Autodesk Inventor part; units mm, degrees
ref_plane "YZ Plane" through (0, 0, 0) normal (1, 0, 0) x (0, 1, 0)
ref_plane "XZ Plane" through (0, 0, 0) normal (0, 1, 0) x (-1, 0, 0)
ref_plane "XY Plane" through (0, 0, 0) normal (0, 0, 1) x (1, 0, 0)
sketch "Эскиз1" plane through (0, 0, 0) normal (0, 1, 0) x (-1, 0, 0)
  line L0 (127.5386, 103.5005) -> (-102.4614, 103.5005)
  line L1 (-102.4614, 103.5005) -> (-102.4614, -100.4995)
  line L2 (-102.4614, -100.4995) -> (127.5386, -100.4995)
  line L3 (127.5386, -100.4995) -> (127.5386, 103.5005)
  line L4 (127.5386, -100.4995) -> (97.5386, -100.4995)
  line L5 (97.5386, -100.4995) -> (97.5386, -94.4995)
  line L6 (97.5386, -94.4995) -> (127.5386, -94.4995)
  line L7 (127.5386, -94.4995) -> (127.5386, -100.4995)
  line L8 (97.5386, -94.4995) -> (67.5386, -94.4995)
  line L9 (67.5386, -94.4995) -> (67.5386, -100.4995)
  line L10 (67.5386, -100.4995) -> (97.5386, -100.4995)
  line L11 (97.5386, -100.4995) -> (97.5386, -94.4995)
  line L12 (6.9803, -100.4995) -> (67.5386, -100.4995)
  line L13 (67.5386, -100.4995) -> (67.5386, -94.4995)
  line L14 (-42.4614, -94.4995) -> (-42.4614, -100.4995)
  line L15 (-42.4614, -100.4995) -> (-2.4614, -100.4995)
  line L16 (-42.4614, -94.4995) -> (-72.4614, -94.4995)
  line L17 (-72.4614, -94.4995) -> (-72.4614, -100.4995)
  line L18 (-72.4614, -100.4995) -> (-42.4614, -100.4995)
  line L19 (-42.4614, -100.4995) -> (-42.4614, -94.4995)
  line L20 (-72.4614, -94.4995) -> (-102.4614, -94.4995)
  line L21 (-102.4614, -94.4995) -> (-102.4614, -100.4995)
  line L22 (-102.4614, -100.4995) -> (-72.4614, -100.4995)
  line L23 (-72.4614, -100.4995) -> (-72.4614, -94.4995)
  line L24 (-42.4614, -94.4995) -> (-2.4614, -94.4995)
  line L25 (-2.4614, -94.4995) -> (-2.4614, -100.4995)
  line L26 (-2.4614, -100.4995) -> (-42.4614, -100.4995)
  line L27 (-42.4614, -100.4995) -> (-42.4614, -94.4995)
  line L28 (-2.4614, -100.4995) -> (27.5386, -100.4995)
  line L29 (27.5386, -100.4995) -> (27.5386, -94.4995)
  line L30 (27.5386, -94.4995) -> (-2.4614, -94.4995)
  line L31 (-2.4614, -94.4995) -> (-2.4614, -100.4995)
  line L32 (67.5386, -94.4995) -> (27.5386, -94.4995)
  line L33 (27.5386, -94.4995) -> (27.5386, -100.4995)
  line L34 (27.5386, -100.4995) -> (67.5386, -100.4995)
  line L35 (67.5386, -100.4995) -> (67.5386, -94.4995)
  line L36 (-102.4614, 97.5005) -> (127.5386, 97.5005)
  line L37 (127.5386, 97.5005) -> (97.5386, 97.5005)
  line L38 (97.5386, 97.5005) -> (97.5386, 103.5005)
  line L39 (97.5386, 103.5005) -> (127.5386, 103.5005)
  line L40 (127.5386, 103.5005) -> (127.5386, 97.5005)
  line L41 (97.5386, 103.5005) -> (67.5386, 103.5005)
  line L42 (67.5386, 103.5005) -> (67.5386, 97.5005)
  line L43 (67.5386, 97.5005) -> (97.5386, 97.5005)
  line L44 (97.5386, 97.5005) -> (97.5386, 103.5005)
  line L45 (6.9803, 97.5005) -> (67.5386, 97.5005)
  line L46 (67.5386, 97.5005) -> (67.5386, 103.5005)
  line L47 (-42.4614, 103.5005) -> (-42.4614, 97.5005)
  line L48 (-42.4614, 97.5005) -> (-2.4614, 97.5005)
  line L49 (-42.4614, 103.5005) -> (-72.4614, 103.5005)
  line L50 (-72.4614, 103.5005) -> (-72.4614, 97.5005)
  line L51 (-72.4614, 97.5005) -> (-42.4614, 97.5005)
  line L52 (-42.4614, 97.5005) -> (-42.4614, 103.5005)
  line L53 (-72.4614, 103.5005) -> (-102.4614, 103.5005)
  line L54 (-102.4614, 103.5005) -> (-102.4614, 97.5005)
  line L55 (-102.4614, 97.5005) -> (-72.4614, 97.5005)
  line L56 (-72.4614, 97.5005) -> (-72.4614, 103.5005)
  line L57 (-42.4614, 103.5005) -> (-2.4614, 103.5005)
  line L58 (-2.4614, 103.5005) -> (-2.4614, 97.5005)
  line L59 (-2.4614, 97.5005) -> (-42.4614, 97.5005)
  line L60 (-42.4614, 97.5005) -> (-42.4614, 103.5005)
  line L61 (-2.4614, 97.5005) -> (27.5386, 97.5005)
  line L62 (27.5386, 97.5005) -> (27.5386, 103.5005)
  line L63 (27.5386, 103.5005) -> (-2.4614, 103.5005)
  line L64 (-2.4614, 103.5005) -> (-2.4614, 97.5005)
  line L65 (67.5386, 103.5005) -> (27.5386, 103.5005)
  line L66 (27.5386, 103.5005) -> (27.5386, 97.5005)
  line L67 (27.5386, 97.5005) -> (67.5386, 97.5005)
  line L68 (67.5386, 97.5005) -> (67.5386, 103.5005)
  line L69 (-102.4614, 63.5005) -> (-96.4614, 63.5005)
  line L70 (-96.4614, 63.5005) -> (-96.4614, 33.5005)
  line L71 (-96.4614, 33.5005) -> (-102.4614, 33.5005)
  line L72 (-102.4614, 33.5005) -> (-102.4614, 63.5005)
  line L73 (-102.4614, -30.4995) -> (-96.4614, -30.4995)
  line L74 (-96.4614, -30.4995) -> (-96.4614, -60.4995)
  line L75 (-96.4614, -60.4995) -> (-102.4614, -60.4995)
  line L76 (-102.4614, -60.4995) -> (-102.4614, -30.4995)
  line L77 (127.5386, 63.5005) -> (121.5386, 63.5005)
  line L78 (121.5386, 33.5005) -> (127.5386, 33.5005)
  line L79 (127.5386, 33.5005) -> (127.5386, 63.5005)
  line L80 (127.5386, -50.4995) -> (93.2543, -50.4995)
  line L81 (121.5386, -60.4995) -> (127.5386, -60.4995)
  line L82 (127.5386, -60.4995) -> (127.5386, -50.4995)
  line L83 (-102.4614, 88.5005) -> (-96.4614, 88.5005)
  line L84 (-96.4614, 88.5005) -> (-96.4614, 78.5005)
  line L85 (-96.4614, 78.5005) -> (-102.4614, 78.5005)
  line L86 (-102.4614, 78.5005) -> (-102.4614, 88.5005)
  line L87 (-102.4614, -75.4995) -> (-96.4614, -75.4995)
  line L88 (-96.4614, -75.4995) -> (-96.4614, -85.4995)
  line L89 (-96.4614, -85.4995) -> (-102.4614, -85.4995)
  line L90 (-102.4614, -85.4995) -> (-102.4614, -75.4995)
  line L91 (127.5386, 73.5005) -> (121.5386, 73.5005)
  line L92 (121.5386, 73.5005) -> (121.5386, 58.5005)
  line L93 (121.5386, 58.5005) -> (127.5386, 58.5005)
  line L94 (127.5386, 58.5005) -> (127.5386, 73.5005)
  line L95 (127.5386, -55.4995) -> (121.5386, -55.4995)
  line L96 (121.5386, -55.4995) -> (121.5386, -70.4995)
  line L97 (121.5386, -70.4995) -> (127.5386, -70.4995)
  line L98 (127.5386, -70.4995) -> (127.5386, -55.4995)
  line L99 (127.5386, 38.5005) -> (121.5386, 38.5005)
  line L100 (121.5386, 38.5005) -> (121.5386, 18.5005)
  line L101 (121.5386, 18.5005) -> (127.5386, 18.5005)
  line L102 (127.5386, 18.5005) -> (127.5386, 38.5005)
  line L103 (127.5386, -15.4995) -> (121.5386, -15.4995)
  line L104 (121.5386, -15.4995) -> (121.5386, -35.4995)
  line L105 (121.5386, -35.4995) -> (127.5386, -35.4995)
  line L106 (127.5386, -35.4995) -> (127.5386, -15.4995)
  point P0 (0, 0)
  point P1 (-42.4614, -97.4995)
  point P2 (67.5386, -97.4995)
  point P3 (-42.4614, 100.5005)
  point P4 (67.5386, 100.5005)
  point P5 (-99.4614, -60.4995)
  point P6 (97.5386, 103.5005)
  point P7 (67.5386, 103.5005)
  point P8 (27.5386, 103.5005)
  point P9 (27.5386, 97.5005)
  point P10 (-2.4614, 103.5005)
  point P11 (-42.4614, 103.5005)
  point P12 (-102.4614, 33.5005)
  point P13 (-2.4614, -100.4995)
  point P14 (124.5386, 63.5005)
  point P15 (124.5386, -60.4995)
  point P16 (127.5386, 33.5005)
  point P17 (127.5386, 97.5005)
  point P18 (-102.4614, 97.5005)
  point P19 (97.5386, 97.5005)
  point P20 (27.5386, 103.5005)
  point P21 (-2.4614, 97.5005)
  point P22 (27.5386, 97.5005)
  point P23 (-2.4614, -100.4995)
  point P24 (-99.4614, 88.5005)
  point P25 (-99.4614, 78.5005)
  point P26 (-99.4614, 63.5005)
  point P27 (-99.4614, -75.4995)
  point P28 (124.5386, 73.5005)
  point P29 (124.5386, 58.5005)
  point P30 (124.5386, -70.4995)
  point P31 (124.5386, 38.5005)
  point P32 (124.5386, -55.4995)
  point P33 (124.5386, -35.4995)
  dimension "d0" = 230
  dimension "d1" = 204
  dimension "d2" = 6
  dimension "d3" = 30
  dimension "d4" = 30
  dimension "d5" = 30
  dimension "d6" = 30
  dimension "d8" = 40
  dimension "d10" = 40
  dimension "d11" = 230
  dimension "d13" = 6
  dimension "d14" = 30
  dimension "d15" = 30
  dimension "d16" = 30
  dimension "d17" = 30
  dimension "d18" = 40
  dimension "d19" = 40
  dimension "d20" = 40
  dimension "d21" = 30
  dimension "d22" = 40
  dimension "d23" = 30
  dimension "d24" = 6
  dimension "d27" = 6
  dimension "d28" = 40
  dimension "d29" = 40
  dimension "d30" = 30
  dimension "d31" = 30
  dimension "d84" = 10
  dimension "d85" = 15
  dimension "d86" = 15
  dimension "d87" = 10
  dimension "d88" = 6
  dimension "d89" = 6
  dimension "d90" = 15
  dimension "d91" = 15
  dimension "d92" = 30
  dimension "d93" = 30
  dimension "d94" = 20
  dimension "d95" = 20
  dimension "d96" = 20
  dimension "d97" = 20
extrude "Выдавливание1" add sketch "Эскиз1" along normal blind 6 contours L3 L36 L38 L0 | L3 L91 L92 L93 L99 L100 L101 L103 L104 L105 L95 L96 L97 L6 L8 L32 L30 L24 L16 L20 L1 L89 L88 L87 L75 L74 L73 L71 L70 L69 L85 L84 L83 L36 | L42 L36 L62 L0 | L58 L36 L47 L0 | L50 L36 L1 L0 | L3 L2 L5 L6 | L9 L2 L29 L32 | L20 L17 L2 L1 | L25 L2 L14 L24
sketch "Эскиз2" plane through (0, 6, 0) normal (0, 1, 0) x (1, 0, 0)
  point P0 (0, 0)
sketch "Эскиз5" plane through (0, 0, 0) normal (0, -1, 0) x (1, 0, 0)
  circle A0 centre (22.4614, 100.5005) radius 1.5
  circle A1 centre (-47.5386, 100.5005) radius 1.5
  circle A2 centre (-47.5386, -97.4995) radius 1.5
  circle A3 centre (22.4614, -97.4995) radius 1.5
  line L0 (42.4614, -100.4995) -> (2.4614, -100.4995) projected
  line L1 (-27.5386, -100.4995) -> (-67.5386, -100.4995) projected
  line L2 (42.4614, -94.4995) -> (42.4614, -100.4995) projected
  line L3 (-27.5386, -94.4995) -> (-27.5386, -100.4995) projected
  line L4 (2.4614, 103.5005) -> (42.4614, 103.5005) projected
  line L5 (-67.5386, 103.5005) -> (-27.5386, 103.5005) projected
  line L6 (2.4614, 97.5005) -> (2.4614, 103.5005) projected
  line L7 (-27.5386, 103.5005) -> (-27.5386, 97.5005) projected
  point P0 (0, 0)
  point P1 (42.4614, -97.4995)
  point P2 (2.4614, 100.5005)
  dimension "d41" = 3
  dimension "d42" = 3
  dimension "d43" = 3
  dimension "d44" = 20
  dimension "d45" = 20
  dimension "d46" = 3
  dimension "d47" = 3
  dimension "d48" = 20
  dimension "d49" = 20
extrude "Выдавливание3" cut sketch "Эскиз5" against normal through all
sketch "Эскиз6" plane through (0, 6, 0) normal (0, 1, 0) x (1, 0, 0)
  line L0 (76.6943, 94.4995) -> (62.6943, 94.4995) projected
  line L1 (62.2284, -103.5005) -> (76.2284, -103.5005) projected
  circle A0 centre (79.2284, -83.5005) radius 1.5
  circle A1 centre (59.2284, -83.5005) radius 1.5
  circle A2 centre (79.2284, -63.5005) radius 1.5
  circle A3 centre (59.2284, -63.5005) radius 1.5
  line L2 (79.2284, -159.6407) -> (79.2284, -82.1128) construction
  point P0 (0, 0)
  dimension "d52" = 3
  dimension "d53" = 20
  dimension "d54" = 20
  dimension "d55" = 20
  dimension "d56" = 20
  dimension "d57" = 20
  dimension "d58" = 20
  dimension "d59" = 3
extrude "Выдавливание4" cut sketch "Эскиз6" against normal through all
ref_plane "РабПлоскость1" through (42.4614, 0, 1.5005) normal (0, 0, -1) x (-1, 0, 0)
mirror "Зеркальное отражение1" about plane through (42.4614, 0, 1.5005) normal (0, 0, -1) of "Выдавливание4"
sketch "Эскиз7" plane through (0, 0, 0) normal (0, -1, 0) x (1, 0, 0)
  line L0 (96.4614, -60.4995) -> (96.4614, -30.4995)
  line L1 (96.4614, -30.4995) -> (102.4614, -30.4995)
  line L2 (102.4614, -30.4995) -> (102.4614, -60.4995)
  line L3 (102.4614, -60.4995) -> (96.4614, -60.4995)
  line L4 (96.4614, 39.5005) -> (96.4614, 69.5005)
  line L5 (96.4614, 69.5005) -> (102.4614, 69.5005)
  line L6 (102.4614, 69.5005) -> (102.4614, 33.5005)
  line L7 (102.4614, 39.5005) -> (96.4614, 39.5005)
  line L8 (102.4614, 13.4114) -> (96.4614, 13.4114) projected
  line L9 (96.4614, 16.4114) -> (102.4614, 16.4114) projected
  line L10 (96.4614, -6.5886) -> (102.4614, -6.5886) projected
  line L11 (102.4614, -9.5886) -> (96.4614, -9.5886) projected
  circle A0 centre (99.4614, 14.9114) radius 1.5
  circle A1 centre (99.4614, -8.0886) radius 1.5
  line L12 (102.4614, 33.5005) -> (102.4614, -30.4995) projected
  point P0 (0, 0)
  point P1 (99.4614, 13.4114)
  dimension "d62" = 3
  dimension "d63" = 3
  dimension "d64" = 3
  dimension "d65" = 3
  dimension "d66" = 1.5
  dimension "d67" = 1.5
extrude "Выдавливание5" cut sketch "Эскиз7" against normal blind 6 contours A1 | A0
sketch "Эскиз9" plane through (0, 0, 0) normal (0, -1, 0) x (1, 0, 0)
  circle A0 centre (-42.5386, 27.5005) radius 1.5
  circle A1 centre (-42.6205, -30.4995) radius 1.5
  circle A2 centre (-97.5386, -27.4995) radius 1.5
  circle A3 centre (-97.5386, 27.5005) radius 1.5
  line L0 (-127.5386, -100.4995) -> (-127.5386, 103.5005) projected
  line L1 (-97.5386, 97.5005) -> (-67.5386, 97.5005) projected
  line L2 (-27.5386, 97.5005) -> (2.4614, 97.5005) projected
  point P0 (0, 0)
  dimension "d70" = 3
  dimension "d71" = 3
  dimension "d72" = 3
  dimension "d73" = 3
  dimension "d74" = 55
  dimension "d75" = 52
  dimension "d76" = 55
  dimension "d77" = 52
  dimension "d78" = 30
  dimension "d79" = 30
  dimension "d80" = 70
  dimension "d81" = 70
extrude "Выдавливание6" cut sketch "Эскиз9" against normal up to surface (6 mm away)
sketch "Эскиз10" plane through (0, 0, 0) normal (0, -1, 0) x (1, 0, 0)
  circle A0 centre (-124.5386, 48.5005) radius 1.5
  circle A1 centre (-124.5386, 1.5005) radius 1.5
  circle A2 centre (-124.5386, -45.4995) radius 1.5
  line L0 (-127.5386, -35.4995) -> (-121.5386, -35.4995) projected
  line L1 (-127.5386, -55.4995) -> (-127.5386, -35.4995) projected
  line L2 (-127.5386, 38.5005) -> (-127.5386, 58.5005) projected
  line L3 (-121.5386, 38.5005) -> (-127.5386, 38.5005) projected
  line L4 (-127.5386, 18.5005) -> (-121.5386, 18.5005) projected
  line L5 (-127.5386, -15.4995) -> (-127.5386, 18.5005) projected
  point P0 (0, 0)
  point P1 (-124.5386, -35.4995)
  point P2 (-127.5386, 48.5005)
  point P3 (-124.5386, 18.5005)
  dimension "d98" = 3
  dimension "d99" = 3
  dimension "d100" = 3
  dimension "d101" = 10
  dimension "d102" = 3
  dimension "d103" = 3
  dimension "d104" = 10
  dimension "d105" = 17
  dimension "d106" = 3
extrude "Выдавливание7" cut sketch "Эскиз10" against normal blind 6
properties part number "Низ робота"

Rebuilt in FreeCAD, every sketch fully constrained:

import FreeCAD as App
import Part
import Sketcher
from FreeCAD import Vector
Q = App.Units.Quantity


def add_polygon(sketch, points):
    """Adds a closed chain of lines whose ends are joined by coincident constraints."""
    first, n = sketch.GeometryCount, len(points)
    for a, b in zip(points, points[1:] + points[:1]):
        sketch.addGeometry(Part.LineSegment(App.Vector(*a, 0), App.Vector(*b, 0)), False)
    for i in range(n):
        sketch.addConstraint(Sketcher.Constraint("Coincident", first + i, 2, first + (i + 1) % n, 1))

doc = App.newDocument("Part")
body = doc.addObject("PartDesign::Body", "Body")

# Sketch on XZ plane
sketch1 = doc.addObject("Sketcher::SketchObject", "Sketch")
body.addObject(sketch1)
sketch1.AttachmentSupport = (doc.XZ_Plane, [""])
sketch1.MapMode = "FlatFace"
add_polygon(sketch1, [(-128, 104), (-98, 104), (-98, 98), (-68, 98), (-68, 104), (-28, 104), (-28, 98), (2, 98), (2, 104), (42, 104), (42, 98), (72, 98), (72, 104), (102, 104), (102, 89), (96, 89), (96, 79), (102, 79), (102, 64), (96, 64), (96, 34), (102, 34), (102, -30), (96, -30), (96, -60), (102, -60), (102, -75), (96, -75), (96, -85), (102, -85), (102, -100), (72, -100), (72, -94), (42, -94), (42, -100), (2, -100), (2, -94), (-28, -94), (-28, -100), (-68, -100), (-68, -94), (-98, -94), (-98, -100), (-128, -100), (-128, -70), (-122, -70), (-122, -55), (-128, -55), (-128, -35), (-122, -35), (-122, -15), (-128, -15), (-128, 19), (-122, 19), (-122, 39), (-128, 39), (-128, 59), (-122, 59), (-122, 74), (-128, 74)])  # lines 0-59
sketch1.addConstraint([
    Sketcher.Constraint("Horizontal", 0),
    Sketcher.Constraint("Vertical", 1),
    Sketcher.Constraint("Horizontal", 2),
    Sketcher.Constraint("Vertical", 3),
    Sketcher.Constraint("Horizontal", 4),
    Sketcher.Constraint("Vertical", 5),
    Sketcher.Constraint("Horizontal", 6),
    Sketcher.Constraint("Vertical", 7),
    Sketcher.Constraint("Horizontal", 8),
    Sketcher.Constraint("Vertical", 9),
    Sketcher.Constraint("Horizontal", 10),
    Sketcher.Constraint("Vertical", 11),
    Sketcher.Constraint("Horizontal", 12),
    Sketcher.Constraint("Vertical", 13),
    Sketcher.Constraint("Horizontal", 14),
    Sketcher.Constraint("Vertical", 15),
    Sketcher.Constraint("Horizontal", 16),
    Sketcher.Constraint("Vertical", 17),
    Sketcher.Constraint("Horizontal", 18),
    Sketcher.Constraint("Vertical", 19),
    Sketcher.Constraint("Horizontal", 20),
    Sketcher.Constraint("Vertical", 21),
    Sketcher.Constraint("Horizontal", 22),
    Sketcher.Constraint("Vertical", 23),
    Sketcher.Constraint("Horizontal", 24),
    Sketcher.Constraint("Vertical", 25),
    Sketcher.Constraint("Horizontal", 26),
    Sketcher.Constraint("Vertical", 27),
    Sketcher.Constraint("Horizontal", 28),
    Sketcher.Constraint("Vertical", 29),
    Sketcher.Constraint("Horizontal", 30),
    Sketcher.Constraint("Vertical", 31),
    Sketcher.Constraint("Horizontal", 32),
    Sketcher.Constraint("Vertical", 33),
    Sketcher.Constraint("Horizontal", 34),
    Sketcher.Constraint("Vertical", 35),
    Sketcher.Constraint("Horizontal", 36),
    Sketcher.Constraint("Vertical", 37),
    Sketcher.Constraint("Horizontal", 38),
    Sketcher.Constraint("Vertical", 39),
    Sketcher.Constraint("Horizontal", 40),
    Sketcher.Constraint("Vertical", 41),
    Sketcher.Constraint("Horizontal", 42),
    Sketcher.Constraint("Vertical", 43),
    Sketcher.Constraint("Horizontal", 44),
    Sketcher.Constraint("Vertical", 45),
    Sketcher.Constraint("Horizontal", 46),
    Sketcher.Constraint("Vertical", 47),
    Sketcher.Constraint("Horizontal", 48),
    Sketcher.Constraint("Vertical", 49),
    Sketcher.Constraint("Horizontal", 50),
    Sketcher.Constraint("Vertical", 51),
    Sketcher.Constraint("Horizontal", 52),
    Sketcher.Constraint("Vertical", 53),
    Sketcher.Constraint("Horizontal", 54),
    Sketcher.Constraint("Vertical", 55),
    Sketcher.Constraint("Horizontal", 56),
    Sketcher.Constraint("Vertical", 57),
    Sketcher.Constraint("Horizontal", 58),
    Sketcher.Constraint("Vertical", 59),
    Sketcher.Constraint("Horizontal", 0, 2, 3, 2),
    Sketcher.Constraint("Horizontal", 2, 2, 5, 2),
    Sketcher.Constraint("Horizontal", 4, 2, 7, 2),
    Sketcher.Constraint("Horizontal", 6, 2, 9, 2),
    Sketcher.Constraint("Horizontal", 8, 2, 11, 2),
    Sketcher.Constraint("Horizontal", 30, 2, 33, 2),
    Sketcher.Constraint("Horizontal", 32, 2, 35, 2),
    Sketcher.Constraint("Horizontal", 34, 2, 37, 2),
    Sketcher.Constraint("Horizontal", 36, 2, 39, 2),
    Sketcher.Constraint("Horizontal", 38, 2, 41, 2),
    Sketcher.Constraint("Vertical", 13, 2, 16, 2),
    Sketcher.Constraint("Vertical", 15, 2, 18, 2),
    Sketcher.Constraint("Vertical", 17, 2, 20, 2),
    Sketcher.Constraint("Vertical", 19, 2, 22, 2),
    Sketcher.Constraint("Vertical", 21, 2, 24, 2),
    Sketcher.Constraint("Vertical", 23, 2, 26, 2),
    Sketcher.Constraint("Vertical", 25, 2, 28, 2),
    Sketcher.Constraint("Vertical", 11, 2, 30, 2),
    Sketcher.Constraint("Vertical", 9, 2, 32, 2),
    Sketcher.Constraint("Vertical", 7, 2, 34, 2),
    Sketcher.Constraint("Vertical", 5, 2, 36, 2),
    Sketcher.Constraint("Vertical", 3, 2, 38, 2),
    Sketcher.Constraint("Vertical", 1, 2, 40, 2),
    Sketcher.Constraint("Vertical", 43, 2, 46, 2),
    Sketcher.Constraint("Vertical", 45, 2, 48, 2),
    Sketcher.Constraint("Vertical", 47, 2, 50, 2),
    Sketcher.Constraint("Vertical", 49, 2, 52, 2),
    Sketcher.Constraint("Vertical", 51, 2, 54, 2),
    Sketcher.Constraint("Vertical", 53, 2, 56, 2),
    Sketcher.Constraint("Vertical", 55, 2, 58, 2),
    Sketcher.Constraint("Equal", 0, 2),
    Sketcher.Constraint("Equal", 2, 6),
    Sketcher.Constraint("Equal", 4, 8),
    Sketcher.Constraint("Equal", 6, 10),
    Sketcher.Constraint("Equal", 10, 12),
    Sketcher.Constraint("Equal", 28, 44),
    Sketcher.Constraint("Equal", 58, 1),
    Sketcher.Constraint("Equal", 13, 17),
    Sketcher.Constraint("Equal", 42, 19),
    Sketcher.Constraint("Equal", 19, 23),
    Sketcher.Constraint("Equal", 17, 25),
    Sketcher.Constraint("Equal", 15, 27),
    Sketcher.Constraint("Equal", 25, 29),
    Sketcher.Constraint("Equal", 11, 31),
    Sketcher.Constraint("Equal", 23, 43),
    Sketcher.Constraint("Equal", 29, 45),
    Sketcher.Constraint("Equal", 47, 49),
    Sketcher.Constraint("Equal", 49, 53),
    Sketcher.Constraint("Equal", 53, 55),
    Sketcher.Constraint("Equal", 45, 57),
    Sketcher.Constraint("Equal", 43, 59),
    Sketcher.Constraint("DistanceX", 0, 1, 0, 2, Q("30 mm")),
    Sketcher.Constraint("DistanceX", 4, 1, 4, 2, Q("40 mm")),
    Sketcher.Constraint("DistanceX", 14, 2, 14, 1, Q("6 mm")),
    Sketcher.Constraint("DistanceY", 13, 2, 13, 1, Q("15 mm")),
    Sketcher.Constraint("DistanceY", 15, 2, 15, 1, Q("10 mm")),
    Sketcher.Constraint("DistanceY", 47, 1, 47, 2, Q("20 mm")),
    Sketcher.Constraint("DistanceY", 21, 2, 21, 1, Q("64 mm")),
    Sketcher.Constraint("DistanceX", 0, 2, -1, 1, Q("97.5386 mm")),
    Sketcher.Constraint("DistanceY", -1, 1, 0, 2, Q("103.5005 mm")),
])
pad1 = doc.addObject("PartDesign::Pad", "Pad")
body.addObject(pad1)
pad1.Profile = sketch1
pad1.Length = 6
pad1.Reversed = True

# Sketch on XZ plane
sketch2 = doc.addObject("Sketcher::SketchObject", "Sketch001")
body.addObject(sketch2)
sketch2.AttachmentSupport = (doc.XZ_Plane, [""])
sketch2.MapMode = "FlatFace"
sketch2.addGeometry([
    Part.Circle(Vector(22.5, 100.5, 0), Vector(0, 0, 1), 1.5),
    Part.Circle(Vector(-47.5, 100.5, 0), Vector(0, 0, 1), 1.5),
    Part.Circle(Vector(-47.5, -97.5, 0), Vector(0, 0, 1), 1.5),
    Part.Circle(Vector(22.5, -97.5, 0), Vector(0, 0, 1), 1.5),
], False)
sketch2.addConstraint([
    Sketcher.Constraint("Equal", 0, 1),
    Sketcher.Constraint("Equal", 1, 2),
    Sketcher.Constraint("Equal", 2, 3),
    Sketcher.Constraint("Horizontal", 0, 3, 1, 3),
    Sketcher.Constraint("Horizontal", 2, 3, 3, 3),
    Sketcher.Constraint("Vertical", 1, 3, 2, 3),
    Sketcher.Constraint("Vertical", 0, 3, 3, 3),
    Sketcher.Constraint("Diameter", 0, Q("3 mm")),
    Sketcher.Constraint("DistanceX", 1, 3, 0, 3, Q("70 mm")),
    Sketcher.Constraint("DistanceY", 2, 3, 1, 3, Q("198 mm")),
    Sketcher.Constraint("DistanceX", -1, 1, 0, 3, Q("22.4614 mm")),
    Sketcher.Constraint("DistanceY", -1, 1, 0, 3, Q("100.5005 mm")),
])
pocket1 = doc.addObject("PartDesign::Pocket", "Pocket")
body.addObject(pocket1)
pocket1.Profile = sketch2
pocket1.Type = "ThroughAll"

# Sketch on XZ plane
sketch3 = doc.addObject("Sketcher::SketchObject", "Sketch002")
body.addObject(sketch3)
sketch3.AttachmentSupport = (doc.XZ_Plane, [""])
sketch3.MapMode = "FlatFace"
sketch3.AttachmentOffset = App.Placement(Vector(0, 0, -6), App.Rotation())
sketch3.addGeometry([
    Part.Circle(Vector(79.2, 83.5, 0), Vector(0, 0, 1), 1.5),
    Part.Circle(Vector(59.2, 83.5, 0), Vector(0, 0, 1), 1.5),
    Part.Circle(Vector(79.2, 63.5, 0), Vector(0, 0, 1), 1.5),
    Part.Circle(Vector(59.2, 63.5, 0), Vector(0, 0, 1), 1.5),
], False)
sketch3.addConstraint([
    Sketcher.Constraint("Equal", 0, 1),
    Sketcher.Constraint("Equal", 1, 2),
    Sketcher.Constraint("Equal", 2, 3),
    Sketcher.Constraint("Horizontal", 0, 3, 1, 3),
    Sketcher.Constraint("Horizontal", 2, 3, 3, 3),
    Sketcher.Constraint("Vertical", 0, 3, 2, 3),
    Sketcher.Constraint("Vertical", 1, 3, 3, 3),
    Sketcher.Constraint("Diameter", 0, Q("3 mm")),
    Sketcher.Constraint("DistanceX", 1, 3, 0, 3, Q("20 mm")),
    Sketcher.Constraint("DistanceY", 2, 3, 0, 3, Q("20 mm")),
    Sketcher.Constraint("DistanceX", -1, 1, 0, 3, Q("79.2284 mm")),
    Sketcher.Constraint("DistanceY", -1, 1, 0, 3, Q("83.5005 mm")),
])
pocket2 = doc.addObject("PartDesign::Pocket", "Pocket001")
body.addObject(pocket2)
pocket2.Profile = sketch3
pocket2.Type = "ThroughAll"
pocket2.Reversed = True
doc.recompute()

datumplane = doc.addObject("PartDesign::Plane", "DatumPlane")
body.addObject(datumplane)
datumplane.AttachmentSupport = (doc.XY_Plane, [""])
datumplane.MapMode = "FlatFace"
datumplane.AttachmentOffset = App.Placement(Vector(0, 0, 1.5005), App.Rotation())
mirrored = doc.addObject("PartDesign::Mirrored", "Mirrored")
body.addObject(mirrored)
mirrored.Originals = [pocket2]
mirrored.MirrorPlane = (datumplane, [""])
body.Tip = mirrored

# Sketch on XZ plane
sketch4 = doc.addObject("Sketcher::SketchObject", "Sketch003")
body.addObject(sketch4)
sketch4.AttachmentSupport = (doc.XZ_Plane, [""])
sketch4.MapMode = "FlatFace"
sketch4.addGeometry([
    Part.Circle(Vector(99.5, -8.1, 0), Vector(0, 0, 1), 1.5),
    Part.Circle(Vector(99.5, 14.9, 0), Vector(0, 0, 1), 1.5),
], False)
sketch4.addConstraint([
    Sketcher.Constraint("Equal", 0, 1),
    Sketcher.Constraint("Vertical", 0, 3, 1, 3),
    Sketcher.Constraint("Diameter", 0, Q("3 mm")),
    Sketcher.Constraint("DistanceY", 0, 3, 1, 3, Q("23 mm")),
    Sketcher.Constraint("DistanceX", -1, 1, 0, 3, Q("99.4614 mm")),
    Sketcher.Constraint("DistanceY", 0, 3, -1, 1, Q("8.0886 mm")),
])
pocket3 = doc.addObject("PartDesign::Pocket", "Pocket002")
body.addObject(pocket3)
pocket3.Profile = sketch4
pocket3.Length = 6

# Sketch on XZ plane
sketch5 = doc.addObject("Sketcher::SketchObject", "Sketch004")
body.addObject(sketch5)
sketch5.AttachmentSupport = (doc.XZ_Plane, [""])
sketch5.MapMode = "FlatFace"
sketch5.addGeometry([
    Part.Circle(Vector(-42.5, 27.5, 0), Vector(0, 0, 1), 1.5),
    Part.Circle(Vector(-42.6, -30.5, 0), Vector(0, 0, 1), 1.5),
    Part.Circle(Vector(-97.5, -27.5, 0), Vector(0, 0, 1), 1.5),
    Part.Circle(Vector(-97.5, 27.5, 0), Vector(0, 0, 1), 1.5),
], False)
sketch5.addConstraint([
    Sketcher.Constraint("Equal", 0, 1),
    Sketcher.Constraint("Equal", 1, 2),
    Sketcher.Constraint("Equal", 2, 3),
    Sketcher.Constraint("Horizontal", 0, 3, 3, 3),
    Sketcher.Constraint("Vertical", 2, 3, 3, 3),
    Sketcher.Constraint("Diameter", 0, Q("3 mm")),
    Sketcher.Constraint("DistanceY", 1, 3, 2, 3, Q("3 mm")),
    Sketcher.Constraint("DistanceX", 2, 3, 0, 3, Q("55 mm")),
    Sketcher.Constraint("DistanceY", 2, 3, 0, 3, Q("55 mm")),
    Sketcher.Constraint("DistanceX", 1, 3, 0, 3, Q("0.082 mm")),
    Sketcher.Constraint("DistanceX", 0, 3, -1, 1, Q("42.5386 mm")),
    Sketcher.Constraint("DistanceY", -1, 1, 0, 3, Q("27.5005 mm")),
])
pocket4 = doc.addObject("PartDesign::Pocket", "Pocket003")
body.addObject(pocket4)
pocket4.Profile = sketch5
pocket4.Length = 6

# Sketch on XZ plane
sketch6 = doc.addObject("Sketcher::SketchObject", "Sketch005")
body.addObject(sketch6)
sketch6.AttachmentSupport = (doc.XZ_Plane, [""])
sketch6.MapMode = "FlatFace"
sketch6.addGeometry([
    Part.Circle(Vector(-124.5, 48.5, 0), Vector(0, 0, 1), 1.5),
    Part.Circle(Vector(-124.5, 1.5, 0), Vector(0, 0, 1), 1.5),
    Part.Circle(Vector(-124.5, -45.5, 0), Vector(0, 0, 1), 1.5),
], False)
sketch6.addConstraint([
    Sketcher.Constraint("Equal", 0, 1),
    Sketcher.Constraint("Equal", 1, 2),
    Sketcher.Constraint("Vertical", 0, 3, 1, 3),
    Sketcher.Constraint("Vertical", 1, 3, 2, 3),
    Sketcher.Constraint("Diameter", 0, Q("3 mm")),
    Sketcher.Constraint("DistanceY", 1, 3, 0, 3, Q("47 mm")),
    Sketcher.Constraint("DistanceY", 2, 3, 1, 3, Q("47 mm")),
    Sketcher.Constraint("DistanceX", 0, 3, -1, 1, Q("124.5386 mm")),
    Sketcher.Constraint("DistanceY", -1, 1, 0, 3, Q("48.5005 mm")),
])
pocket5 = doc.addObject("PartDesign::Pocket", "Pocket004")
body.addObject(pocket5)
pocket5.Profile = sketch6
pocket5.Length = 6

doc.recompute()
